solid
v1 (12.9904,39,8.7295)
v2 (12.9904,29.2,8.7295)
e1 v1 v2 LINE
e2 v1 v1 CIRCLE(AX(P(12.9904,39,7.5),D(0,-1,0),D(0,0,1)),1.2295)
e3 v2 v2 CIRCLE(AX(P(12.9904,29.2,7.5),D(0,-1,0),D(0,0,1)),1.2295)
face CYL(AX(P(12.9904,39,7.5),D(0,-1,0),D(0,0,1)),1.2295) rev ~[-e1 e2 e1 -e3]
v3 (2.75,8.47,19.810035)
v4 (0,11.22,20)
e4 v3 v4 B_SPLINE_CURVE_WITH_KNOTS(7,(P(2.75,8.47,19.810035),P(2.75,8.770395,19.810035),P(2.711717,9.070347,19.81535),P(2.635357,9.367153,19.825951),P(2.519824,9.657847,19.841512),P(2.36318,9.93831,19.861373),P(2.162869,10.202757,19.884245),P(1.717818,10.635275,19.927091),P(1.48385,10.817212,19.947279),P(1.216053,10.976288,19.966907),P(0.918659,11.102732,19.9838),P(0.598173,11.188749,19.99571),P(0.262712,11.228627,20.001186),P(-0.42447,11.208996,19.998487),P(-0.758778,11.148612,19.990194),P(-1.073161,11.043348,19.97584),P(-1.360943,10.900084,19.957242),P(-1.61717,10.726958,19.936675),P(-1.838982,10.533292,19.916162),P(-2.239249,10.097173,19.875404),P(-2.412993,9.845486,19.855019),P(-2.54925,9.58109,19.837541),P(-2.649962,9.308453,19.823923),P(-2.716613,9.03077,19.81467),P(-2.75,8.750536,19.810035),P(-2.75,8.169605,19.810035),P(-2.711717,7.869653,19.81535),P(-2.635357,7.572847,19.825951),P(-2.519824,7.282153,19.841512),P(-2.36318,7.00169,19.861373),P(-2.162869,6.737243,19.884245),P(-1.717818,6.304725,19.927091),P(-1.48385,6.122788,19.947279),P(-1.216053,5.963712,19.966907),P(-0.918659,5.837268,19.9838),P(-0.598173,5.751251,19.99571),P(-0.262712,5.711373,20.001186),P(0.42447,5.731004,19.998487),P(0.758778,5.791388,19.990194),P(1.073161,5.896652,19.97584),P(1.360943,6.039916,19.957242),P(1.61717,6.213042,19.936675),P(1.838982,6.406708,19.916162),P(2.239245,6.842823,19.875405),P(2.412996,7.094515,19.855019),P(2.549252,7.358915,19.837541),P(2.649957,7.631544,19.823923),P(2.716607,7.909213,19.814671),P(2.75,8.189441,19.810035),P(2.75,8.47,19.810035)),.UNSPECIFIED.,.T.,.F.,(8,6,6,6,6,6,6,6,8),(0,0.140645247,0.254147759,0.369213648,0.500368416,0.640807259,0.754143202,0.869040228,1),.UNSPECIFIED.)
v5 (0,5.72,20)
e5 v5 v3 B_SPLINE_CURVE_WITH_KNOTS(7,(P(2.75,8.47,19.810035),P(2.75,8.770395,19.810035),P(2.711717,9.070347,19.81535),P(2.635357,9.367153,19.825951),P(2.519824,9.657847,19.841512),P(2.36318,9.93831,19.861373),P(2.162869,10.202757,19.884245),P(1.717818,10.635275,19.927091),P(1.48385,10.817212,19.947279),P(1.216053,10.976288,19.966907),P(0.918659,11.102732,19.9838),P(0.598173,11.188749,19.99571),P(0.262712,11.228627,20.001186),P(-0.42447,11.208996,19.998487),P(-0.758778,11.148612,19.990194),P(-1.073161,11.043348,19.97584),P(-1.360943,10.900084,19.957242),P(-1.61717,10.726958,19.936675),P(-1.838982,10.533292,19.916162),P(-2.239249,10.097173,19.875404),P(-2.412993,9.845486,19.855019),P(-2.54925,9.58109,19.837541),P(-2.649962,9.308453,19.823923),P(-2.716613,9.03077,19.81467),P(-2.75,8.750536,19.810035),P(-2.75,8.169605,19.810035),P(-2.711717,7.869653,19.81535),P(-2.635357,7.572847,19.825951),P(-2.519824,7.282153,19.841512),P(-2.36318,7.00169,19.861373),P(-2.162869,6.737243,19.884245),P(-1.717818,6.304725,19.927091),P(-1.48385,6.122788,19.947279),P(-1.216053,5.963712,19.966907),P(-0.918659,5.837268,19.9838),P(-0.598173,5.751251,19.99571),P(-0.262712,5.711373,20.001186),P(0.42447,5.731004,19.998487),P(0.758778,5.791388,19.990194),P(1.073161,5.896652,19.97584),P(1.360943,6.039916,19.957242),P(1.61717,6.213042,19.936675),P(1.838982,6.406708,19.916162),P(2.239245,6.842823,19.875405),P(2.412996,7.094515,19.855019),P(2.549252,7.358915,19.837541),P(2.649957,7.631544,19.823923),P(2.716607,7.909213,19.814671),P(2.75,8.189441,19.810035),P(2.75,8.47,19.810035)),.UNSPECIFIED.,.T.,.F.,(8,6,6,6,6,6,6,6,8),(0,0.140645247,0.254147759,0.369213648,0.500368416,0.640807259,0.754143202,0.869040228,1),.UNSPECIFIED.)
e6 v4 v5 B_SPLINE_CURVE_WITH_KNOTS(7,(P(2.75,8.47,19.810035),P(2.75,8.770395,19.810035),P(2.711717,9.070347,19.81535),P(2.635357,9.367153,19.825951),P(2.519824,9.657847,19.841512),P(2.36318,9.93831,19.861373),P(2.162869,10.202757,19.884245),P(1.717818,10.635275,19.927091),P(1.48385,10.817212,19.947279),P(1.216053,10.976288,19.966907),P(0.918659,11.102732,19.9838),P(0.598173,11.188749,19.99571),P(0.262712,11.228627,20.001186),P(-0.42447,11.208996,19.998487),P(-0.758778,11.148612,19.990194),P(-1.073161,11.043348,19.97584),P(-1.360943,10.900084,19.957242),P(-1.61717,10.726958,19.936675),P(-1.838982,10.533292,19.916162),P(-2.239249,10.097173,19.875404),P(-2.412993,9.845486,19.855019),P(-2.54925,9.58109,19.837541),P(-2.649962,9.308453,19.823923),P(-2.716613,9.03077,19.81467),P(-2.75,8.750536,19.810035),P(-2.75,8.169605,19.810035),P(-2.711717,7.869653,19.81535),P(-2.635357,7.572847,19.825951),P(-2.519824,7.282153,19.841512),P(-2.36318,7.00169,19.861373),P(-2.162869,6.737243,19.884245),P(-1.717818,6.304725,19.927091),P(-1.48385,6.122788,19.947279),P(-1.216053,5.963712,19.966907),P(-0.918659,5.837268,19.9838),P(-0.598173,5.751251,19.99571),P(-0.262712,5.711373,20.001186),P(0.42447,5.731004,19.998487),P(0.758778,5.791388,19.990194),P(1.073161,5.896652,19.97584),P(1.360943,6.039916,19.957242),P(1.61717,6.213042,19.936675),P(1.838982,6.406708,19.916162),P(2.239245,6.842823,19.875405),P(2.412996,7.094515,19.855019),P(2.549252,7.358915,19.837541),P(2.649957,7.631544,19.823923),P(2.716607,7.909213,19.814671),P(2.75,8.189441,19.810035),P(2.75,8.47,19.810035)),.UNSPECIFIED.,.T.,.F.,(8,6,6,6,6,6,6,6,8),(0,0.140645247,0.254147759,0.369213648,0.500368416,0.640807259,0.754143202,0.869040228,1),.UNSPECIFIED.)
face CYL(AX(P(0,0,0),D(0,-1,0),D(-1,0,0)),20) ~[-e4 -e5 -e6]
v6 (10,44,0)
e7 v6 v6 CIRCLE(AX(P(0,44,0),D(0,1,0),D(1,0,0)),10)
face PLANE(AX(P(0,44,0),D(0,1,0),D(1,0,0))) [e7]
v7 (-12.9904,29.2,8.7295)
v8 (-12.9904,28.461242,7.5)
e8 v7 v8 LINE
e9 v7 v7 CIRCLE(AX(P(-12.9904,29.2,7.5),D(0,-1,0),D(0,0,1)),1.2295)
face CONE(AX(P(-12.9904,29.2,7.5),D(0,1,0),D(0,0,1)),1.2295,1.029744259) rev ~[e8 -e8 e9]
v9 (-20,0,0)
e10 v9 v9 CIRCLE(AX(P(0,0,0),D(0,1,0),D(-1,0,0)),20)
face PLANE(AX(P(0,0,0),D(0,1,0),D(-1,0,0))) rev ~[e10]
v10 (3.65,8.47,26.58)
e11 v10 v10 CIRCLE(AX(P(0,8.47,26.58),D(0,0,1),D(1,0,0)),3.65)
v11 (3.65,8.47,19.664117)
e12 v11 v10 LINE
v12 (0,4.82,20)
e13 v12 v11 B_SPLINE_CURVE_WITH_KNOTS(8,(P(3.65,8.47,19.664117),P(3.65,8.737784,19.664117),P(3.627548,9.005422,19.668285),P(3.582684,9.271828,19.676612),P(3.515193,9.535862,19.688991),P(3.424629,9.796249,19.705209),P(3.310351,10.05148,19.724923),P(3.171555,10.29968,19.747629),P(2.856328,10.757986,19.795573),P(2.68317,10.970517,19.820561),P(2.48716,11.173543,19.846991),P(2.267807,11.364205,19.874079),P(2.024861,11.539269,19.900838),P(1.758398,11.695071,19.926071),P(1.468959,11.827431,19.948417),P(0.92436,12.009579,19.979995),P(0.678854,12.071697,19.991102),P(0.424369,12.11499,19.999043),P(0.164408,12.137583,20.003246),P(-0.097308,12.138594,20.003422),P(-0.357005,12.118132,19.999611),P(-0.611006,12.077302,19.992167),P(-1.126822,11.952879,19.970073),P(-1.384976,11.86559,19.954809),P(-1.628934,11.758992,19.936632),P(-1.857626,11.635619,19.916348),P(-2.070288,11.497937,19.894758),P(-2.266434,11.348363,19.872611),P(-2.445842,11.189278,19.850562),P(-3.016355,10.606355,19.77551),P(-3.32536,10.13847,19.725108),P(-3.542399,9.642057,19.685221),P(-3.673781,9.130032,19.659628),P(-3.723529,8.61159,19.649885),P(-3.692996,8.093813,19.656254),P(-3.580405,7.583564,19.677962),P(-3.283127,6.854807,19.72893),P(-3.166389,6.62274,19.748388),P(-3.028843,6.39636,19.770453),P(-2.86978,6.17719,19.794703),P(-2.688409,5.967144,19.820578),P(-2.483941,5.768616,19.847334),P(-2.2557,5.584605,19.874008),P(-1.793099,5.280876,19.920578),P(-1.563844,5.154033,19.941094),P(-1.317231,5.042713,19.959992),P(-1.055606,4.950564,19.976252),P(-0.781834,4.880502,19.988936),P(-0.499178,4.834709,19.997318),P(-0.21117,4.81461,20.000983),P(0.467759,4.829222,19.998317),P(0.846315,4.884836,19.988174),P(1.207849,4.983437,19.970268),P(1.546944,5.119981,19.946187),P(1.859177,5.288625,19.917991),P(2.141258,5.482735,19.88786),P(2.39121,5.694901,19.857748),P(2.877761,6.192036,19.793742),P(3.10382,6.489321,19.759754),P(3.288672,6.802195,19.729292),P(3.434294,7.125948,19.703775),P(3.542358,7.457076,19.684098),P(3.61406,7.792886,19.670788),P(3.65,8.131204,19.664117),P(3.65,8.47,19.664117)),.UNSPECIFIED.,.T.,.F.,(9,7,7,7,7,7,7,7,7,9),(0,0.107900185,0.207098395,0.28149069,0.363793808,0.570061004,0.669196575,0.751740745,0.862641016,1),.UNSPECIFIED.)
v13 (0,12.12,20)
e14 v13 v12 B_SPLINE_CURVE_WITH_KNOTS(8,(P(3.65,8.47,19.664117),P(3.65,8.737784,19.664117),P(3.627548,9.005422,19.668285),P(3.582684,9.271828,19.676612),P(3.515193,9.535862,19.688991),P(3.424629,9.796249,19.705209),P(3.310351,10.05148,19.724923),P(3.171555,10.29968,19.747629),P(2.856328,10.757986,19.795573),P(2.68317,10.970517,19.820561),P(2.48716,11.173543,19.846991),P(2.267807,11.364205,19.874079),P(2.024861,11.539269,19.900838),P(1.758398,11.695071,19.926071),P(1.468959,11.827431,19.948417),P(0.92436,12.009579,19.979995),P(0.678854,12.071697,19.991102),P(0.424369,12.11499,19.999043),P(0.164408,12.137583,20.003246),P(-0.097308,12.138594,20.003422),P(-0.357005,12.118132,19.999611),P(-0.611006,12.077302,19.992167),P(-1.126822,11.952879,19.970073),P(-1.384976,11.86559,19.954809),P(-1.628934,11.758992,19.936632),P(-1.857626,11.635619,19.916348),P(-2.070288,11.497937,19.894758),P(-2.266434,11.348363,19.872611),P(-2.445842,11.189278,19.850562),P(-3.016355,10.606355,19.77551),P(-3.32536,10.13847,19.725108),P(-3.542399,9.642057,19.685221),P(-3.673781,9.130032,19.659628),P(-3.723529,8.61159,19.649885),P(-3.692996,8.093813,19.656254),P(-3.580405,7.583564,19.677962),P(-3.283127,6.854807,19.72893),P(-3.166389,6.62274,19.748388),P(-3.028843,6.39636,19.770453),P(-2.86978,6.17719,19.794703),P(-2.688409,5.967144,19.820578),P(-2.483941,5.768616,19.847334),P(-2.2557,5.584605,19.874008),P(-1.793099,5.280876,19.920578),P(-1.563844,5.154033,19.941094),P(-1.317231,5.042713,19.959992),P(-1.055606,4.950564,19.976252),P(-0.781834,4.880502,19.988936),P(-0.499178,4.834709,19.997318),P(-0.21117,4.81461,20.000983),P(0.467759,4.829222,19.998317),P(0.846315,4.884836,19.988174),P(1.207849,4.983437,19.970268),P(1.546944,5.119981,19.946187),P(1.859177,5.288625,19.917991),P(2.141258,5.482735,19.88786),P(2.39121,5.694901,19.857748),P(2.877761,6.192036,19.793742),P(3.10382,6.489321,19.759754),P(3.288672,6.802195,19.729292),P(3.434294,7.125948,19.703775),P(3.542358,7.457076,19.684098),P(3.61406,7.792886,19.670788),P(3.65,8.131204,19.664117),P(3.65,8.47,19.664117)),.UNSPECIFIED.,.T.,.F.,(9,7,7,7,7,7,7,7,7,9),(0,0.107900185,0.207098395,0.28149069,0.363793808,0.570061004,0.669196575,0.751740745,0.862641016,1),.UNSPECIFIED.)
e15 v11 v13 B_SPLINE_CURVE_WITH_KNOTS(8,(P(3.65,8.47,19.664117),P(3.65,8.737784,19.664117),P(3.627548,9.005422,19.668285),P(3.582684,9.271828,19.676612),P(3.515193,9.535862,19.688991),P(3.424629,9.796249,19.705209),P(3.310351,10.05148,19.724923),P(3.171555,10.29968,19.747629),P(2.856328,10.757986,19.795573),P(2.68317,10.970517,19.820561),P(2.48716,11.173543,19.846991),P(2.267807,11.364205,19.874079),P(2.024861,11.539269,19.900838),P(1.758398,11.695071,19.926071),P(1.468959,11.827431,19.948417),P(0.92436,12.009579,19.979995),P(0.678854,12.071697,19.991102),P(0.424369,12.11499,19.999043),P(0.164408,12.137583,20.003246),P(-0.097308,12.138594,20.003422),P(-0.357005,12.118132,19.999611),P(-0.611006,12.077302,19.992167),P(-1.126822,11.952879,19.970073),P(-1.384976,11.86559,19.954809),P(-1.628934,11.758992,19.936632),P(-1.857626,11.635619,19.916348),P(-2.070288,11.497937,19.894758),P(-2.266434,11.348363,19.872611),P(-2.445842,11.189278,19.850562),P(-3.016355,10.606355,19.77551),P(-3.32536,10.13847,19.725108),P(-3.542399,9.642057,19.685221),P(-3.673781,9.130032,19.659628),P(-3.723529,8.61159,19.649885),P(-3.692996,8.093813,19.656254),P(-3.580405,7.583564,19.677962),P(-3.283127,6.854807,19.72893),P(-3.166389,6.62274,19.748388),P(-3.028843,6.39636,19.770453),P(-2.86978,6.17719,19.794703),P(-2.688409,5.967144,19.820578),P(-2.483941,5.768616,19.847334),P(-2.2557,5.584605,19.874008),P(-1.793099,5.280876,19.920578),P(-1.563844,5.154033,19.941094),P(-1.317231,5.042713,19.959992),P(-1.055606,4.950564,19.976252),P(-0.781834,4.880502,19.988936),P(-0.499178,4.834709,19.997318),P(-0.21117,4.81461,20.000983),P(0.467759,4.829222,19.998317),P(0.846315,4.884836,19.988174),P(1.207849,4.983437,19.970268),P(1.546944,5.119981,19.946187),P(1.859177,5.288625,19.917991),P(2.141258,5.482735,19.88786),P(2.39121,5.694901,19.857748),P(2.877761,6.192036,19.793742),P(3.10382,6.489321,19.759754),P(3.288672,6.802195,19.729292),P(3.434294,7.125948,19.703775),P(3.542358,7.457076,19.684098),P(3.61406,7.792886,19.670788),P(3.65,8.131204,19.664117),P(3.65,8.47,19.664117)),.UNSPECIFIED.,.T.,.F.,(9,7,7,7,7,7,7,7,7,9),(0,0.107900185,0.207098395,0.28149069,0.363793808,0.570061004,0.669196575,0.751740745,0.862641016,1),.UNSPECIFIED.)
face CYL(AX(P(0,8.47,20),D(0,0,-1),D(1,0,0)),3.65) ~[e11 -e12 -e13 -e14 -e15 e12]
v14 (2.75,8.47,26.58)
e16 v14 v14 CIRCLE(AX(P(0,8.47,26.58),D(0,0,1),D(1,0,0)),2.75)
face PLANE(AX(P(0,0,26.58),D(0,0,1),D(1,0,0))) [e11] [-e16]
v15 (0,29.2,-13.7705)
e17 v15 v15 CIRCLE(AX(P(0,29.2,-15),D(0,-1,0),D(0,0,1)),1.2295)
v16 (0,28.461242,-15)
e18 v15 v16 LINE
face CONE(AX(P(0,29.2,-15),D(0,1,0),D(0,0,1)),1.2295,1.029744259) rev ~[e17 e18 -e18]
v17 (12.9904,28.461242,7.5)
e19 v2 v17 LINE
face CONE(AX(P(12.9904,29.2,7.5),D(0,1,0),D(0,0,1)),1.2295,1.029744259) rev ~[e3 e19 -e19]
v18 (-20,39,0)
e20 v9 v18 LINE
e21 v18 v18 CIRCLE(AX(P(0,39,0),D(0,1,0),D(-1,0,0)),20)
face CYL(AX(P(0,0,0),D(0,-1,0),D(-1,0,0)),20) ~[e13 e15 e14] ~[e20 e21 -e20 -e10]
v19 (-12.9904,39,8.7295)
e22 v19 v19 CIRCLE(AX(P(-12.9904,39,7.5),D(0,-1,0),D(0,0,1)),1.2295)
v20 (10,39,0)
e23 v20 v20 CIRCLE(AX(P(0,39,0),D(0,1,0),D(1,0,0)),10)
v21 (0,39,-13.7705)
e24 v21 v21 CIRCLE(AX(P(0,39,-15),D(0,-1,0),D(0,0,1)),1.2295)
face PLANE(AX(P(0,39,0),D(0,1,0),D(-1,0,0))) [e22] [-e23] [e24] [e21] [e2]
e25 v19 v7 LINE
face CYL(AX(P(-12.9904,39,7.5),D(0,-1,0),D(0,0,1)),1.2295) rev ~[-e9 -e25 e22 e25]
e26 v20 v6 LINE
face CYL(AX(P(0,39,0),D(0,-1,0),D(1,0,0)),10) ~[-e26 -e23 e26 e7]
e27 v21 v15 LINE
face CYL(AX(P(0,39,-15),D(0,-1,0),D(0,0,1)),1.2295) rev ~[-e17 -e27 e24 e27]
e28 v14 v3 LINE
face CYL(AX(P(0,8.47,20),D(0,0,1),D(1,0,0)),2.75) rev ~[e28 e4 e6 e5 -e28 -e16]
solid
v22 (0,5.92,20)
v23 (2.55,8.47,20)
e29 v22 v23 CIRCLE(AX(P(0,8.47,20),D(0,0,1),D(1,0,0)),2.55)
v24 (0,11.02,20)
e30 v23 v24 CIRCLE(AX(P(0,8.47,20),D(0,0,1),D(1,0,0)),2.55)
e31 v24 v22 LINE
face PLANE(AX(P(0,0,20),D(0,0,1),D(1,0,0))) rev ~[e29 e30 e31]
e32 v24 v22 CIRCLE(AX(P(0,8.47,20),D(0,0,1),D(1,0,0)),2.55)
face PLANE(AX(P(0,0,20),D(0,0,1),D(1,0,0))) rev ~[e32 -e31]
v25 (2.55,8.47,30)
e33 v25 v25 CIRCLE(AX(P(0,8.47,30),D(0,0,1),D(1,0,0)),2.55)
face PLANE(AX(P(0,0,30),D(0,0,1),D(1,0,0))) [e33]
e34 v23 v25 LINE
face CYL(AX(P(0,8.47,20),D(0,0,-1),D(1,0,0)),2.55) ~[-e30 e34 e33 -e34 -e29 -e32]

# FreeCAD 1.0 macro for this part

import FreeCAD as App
import Part
import Sketcher
from FreeCAD import Vector
Q = App.Units.Quantity

doc = App.newDocument("Part")
body = doc.addObject("PartDesign::Body", "Body")
body.AllowCompound = True

sketch1 = body.newObject("Sketcher::SketchObject", "Sketch")
sketch1.AttachmentSupport = (doc.getObject("XZ_Plane"), [""])
sketch1.MapMode = "FlatFace"
sketch1.addGeometry(Part.Circle(Vector(0, 0, 0), Vector(0, 0, 1), 20), False)
sketch1.addConstraint([
    Sketcher.Constraint("Coincident", 0, 3, -1, 1),
    Sketcher.Constraint("Diameter", 0, Q("40 mm")),
])
pad1 = body.newObject("PartDesign::Pad", "Pad")
pad1.Profile = sketch1
pad1.Length = 39
pad1.Reversed = True

sketch2 = body.newObject("Sketcher::SketchObject", "Sketch001")
sketch2.AttachmentSupport = (doc.getObject("XZ_Plane"), [""])
sketch2.MapMode = "FlatFace"
sketch2.AttachmentOffset = App.Placement(Vector(0, 0, -39), App.Rotation())
sketch2.addGeometry(Part.Circle(Vector(0, 0, 0), Vector(0, 0, 1), 10), False)
sketch2.addConstraint([
    Sketcher.Constraint("Coincident", 0, 3, -1, 1),
    Sketcher.Constraint("Diameter", 0, Q("20 mm")),
])
pad2 = body.newObject("PartDesign::Pad", "Pad001")
pad2.Profile = sketch2
pad2.Length = 5
pad2.Reversed = True

sketch3 = body.newObject("Sketcher::SketchObject", "Sketch002")
sketch3.AttachmentSupport = (doc.getObject("XZ_Plane"), [""])
sketch3.MapMode = "FlatFace"
sketch3.AttachmentOffset = App.Placement(Vector(0, 0, -39), App.Rotation())
sketch3.addGeometry([
    Part.Circle(Vector(0, -15, 0), Vector(0, 0, 1), 1.2),
    Part.Circle(Vector(-13, 7.5, 0), Vector(0, 0, 1), 1.2),
    Part.Circle(Vector(13, 7.5, 0), Vector(0, 0, 1), 1.2),
], False)
sketch3.addConstraint([
    Sketcher.Constraint("Equal", 0, 1),
    Sketcher.Constraint("Equal", 1, 2),
    Sketcher.Constraint("Symmetric", 1, 3, 2, 3, -2),
    Sketcher.Constraint("PointOnObject", 0, 3, -2),
    Sketcher.Constraint("Diameter", 0, Q("2.459 mm")),
    Sketcher.Constraint("DistanceY", 0, 3, -1, 1, Q("15 mm")),
    Sketcher.Constraint("DistanceY", -1, 1, 1, 3, Q("7.5 mm")),
    Sketcher.Constraint("DistanceX", 1, 3, -1, 1, Q("12.9904 mm")),
])
doc.recompute()
hole = body.newObject("PartDesign::Hole", "Hole")
hole.Profile = sketch3
hole.ThreadType = "None"
hole.Diameter = 2.459
hole.DepthType = "Dimension"
hole.Depth = 9.8
hole.DrillPoint = "Angled"
hole.DrillPointAngle = 118
hole.Reversed = True

sketch4 = body.newObject("Sketcher::SketchObject", "Sketch003")
sketch4.AttachmentSupport = (doc.getObject("XY_Plane"), [""])
sketch4.MapMode = "FlatFace"
sketch4.AttachmentOffset = App.Placement(Vector(0, 0, 20), App.Rotation())
sketch4.addGeometry([
    Part.Circle(Vector(0, 8.5, 0), Vector(0, 0, 1), 3.6),
    Part.Circle(Vector(0, 8.5, 0), Vector(0, 0, 1), 2.8),
], False)
sketch4.addConstraint([
    Sketcher.Constraint("Coincident", 1, 3, 0, 3),
    Sketcher.Constraint("PointOnObject", 0, 3, -2),
    Sketcher.Constraint("Diameter", 0, Q("7.3 mm")),
    Sketcher.Constraint("Diameter", 1, Q("5.5 mm")),
    Sketcher.Constraint("DistanceY", -1, 1, 0, 3, Q("8.47 mm")),
])
pad3 = body.newObject("PartDesign::Pad", "Pad002")
pad3.Profile = sketch4
pad3.Type = "TwoLengths"
pad3.Length = 6.58
pad3.Length2 = 3.29

sketch5 = body.newObject("Sketcher::SketchObject", "Sketch004")
sketch5.AttachmentSupport = (doc.getObject("XY_Plane"), [""])
sketch5.MapMode = "FlatFace"
sketch5.AttachmentOffset = App.Placement(Vector(0, 0, 20), App.Rotation())
sketch5.addGeometry(Part.Circle(Vector(0, 8.5, 0), Vector(0, 0, 1), 2.5), False)
sketch5.addConstraint([
    Sketcher.Constraint("PointOnObject", 0, 3, -2),
    Sketcher.Constraint("Diameter", 0, Q("5.1 mm")),
    Sketcher.Constraint("DistanceY", -1, 1, 0, 3, Q("8.47 mm")),
])
pad4 = body.newObject("PartDesign::Pad", "Pad003")
pad4.Profile = sketch5
pad4.Length = 10

doc.recompute()
